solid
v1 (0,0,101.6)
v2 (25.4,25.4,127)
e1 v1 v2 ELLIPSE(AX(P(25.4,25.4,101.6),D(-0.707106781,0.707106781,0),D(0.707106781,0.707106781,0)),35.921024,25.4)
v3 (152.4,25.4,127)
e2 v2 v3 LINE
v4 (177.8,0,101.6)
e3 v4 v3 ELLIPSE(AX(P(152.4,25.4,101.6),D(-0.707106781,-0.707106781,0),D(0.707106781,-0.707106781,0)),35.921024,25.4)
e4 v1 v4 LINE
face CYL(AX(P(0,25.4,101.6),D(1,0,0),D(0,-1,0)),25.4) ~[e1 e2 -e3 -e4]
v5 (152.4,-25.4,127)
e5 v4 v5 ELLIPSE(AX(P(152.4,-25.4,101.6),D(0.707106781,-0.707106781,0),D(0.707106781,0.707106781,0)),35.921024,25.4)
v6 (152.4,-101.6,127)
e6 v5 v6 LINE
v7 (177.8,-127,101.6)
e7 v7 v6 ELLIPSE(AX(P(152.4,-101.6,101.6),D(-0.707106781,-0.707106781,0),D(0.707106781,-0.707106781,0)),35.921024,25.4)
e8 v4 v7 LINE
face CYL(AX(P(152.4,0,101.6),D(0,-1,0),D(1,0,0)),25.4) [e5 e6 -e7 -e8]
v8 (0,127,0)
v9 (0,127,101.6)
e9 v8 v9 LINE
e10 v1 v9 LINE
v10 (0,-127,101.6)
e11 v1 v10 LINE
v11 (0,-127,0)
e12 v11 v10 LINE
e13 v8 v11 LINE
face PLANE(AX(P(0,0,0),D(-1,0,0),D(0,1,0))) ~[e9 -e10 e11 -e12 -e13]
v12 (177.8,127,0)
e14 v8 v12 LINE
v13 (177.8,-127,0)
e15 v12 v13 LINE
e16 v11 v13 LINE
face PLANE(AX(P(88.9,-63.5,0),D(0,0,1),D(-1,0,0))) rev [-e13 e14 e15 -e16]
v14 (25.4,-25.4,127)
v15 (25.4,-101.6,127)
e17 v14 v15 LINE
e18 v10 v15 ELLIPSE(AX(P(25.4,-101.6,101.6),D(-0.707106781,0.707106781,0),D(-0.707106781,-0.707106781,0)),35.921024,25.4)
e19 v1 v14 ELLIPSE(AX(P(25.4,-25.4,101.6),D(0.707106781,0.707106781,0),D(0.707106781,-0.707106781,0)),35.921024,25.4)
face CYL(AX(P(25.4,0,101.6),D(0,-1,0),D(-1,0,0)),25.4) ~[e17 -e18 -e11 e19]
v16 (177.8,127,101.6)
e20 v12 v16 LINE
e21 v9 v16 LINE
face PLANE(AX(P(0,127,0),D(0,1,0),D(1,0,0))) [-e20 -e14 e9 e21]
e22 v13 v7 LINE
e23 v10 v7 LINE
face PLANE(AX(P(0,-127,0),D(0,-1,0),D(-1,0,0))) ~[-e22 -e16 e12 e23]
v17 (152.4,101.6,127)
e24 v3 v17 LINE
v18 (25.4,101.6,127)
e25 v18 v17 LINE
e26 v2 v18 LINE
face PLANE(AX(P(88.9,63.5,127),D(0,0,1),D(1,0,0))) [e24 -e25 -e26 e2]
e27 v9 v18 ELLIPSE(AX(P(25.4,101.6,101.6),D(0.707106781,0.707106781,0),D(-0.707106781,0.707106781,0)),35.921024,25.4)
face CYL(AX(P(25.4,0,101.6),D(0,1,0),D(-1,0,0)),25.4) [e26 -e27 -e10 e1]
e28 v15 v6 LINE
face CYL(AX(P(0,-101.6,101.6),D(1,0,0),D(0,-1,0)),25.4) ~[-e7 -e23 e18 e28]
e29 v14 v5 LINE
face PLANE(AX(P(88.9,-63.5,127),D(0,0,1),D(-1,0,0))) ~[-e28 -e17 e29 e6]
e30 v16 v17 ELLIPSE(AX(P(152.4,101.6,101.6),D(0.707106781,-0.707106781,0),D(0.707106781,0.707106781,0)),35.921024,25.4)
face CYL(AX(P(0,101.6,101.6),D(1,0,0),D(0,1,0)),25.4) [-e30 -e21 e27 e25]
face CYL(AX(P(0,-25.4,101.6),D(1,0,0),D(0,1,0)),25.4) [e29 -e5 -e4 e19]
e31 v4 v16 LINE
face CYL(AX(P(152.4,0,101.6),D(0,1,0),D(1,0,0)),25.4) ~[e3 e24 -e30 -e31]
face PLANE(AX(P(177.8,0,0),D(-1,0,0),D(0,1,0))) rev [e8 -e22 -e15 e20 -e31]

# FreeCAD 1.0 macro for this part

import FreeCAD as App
import Part
import Sketcher
Q = App.Units.Quantity


def edges_at(feature, points):
    """Names of the edges that pass closest to the given points."""
    edges = feature.Shape.Edges
    near = lambda p: min(range(len(edges)), key=lambda i: edges[i].distToShape(Part.Vertex(*p))[0])
    return sorted({f"Edge{near(p) + 1}" for p in points})


def add_polygon(sketch, points):
    """Adds a closed chain of lines whose ends are joined by coincident constraints."""
    first, n = sketch.GeometryCount, len(points)
    for a, b in zip(points, points[1:] + points[:1]):
        sketch.addGeometry(Part.LineSegment(App.Vector(*a, 0), App.Vector(*b, 0)), False)
    for i in range(n):
        sketch.addConstraint(Sketcher.Constraint("Coincident", first + i, 2, first + (i + 1) % n, 1))

doc = App.newDocument("Part")
params = doc.addObject("Spreadsheet::Sheet", "Params")
for row, (alias, value) in enumerate([
    ("sketch1_width", "7 in"),
    ("sketch1_height", "5 in"),
    ("pad1_length", "5 in"),
    ("fillet_radius", "1 in"),
], start=1):
    params.set(f"A{row}", alias)
    params.set(f"B{row}", "=" + value)
    params.setAlias(f"B{row}", alias)

body = doc.addObject("PartDesign::Body", "Body")

# Sketch on XY plane
sketch1 = body.newObject("Sketcher::SketchObject", "Sketch")
sketch1.AttachmentSupport = (doc.getObject("XY_Plane"), [""])
sketch1.MapMode = "FlatFace"
add_polygon(sketch1, [(0, 127), (0, 0), (178, 0), (178, 127)])  # lines 0-3
sketch1.addConstraint(Sketcher.Constraint("Vertical", 0))
sketch1.addConstraint(Sketcher.Constraint("Horizontal", 1))
sketch1.addConstraint(Sketcher.Constraint("Vertical", 2))
sketch1.addConstraint(Sketcher.Constraint("Horizontal", 3))
sketch1.addConstraint(Sketcher.Constraint("Coincident", 0, 2, -1, 1))
sketch1.addConstraint(Sketcher.Constraint("DistanceX", 1, 1, 1, 2, Q("7 in")))
sketch1.addConstraint(Sketcher.Constraint("DistanceY", 0, 2, 0, 1, Q("5 in")))
sketch1.setExpression("Constraints[9]", "Params.sketch1_width")
sketch1.setExpression("Constraints[10]", "Params.sketch1_height")
pad1 = body.newObject("PartDesign::Pad", "Pad")
pad1.Profile = sketch1
pad1.setExpression("Length", "Params.pad1_length")
doc.recompute()

fillet = body.newObject("PartDesign::Fillet", "Fillet")
fillet.Base = (pad1, edges_at(pad1, [
    (0, 63.5, 127),
    (88.9, 0, 127),
    (88.9, 127, 127),
    (177.8, 63.5, 127),
]))
fillet.setExpression("Radius", "Params.fillet_radius")
body2 = doc.addObject("PartDesign::Body", "Body001")
doc.recompute()

body2.BaseFeature = body
doc.recompute()

mirroring = doc.addObject("Part::Mirroring", "Mirroring")
mirroring.Source = body
mirroring.Base = App.Vector(0, 0, 0)
mirroring.Normal = App.Vector(0, -1, 0)
body3 = doc.addObject("PartDesign::Body", "Body002")
body3.BaseFeature = mirroring
boolean = body2.newObject("PartDesign::Boolean", "Boolean")
boolean.Type = "Fuse"
boolean.addObjects([body3])
doc.recompute()
mirroring.Visibility = False

doc.recompute()
